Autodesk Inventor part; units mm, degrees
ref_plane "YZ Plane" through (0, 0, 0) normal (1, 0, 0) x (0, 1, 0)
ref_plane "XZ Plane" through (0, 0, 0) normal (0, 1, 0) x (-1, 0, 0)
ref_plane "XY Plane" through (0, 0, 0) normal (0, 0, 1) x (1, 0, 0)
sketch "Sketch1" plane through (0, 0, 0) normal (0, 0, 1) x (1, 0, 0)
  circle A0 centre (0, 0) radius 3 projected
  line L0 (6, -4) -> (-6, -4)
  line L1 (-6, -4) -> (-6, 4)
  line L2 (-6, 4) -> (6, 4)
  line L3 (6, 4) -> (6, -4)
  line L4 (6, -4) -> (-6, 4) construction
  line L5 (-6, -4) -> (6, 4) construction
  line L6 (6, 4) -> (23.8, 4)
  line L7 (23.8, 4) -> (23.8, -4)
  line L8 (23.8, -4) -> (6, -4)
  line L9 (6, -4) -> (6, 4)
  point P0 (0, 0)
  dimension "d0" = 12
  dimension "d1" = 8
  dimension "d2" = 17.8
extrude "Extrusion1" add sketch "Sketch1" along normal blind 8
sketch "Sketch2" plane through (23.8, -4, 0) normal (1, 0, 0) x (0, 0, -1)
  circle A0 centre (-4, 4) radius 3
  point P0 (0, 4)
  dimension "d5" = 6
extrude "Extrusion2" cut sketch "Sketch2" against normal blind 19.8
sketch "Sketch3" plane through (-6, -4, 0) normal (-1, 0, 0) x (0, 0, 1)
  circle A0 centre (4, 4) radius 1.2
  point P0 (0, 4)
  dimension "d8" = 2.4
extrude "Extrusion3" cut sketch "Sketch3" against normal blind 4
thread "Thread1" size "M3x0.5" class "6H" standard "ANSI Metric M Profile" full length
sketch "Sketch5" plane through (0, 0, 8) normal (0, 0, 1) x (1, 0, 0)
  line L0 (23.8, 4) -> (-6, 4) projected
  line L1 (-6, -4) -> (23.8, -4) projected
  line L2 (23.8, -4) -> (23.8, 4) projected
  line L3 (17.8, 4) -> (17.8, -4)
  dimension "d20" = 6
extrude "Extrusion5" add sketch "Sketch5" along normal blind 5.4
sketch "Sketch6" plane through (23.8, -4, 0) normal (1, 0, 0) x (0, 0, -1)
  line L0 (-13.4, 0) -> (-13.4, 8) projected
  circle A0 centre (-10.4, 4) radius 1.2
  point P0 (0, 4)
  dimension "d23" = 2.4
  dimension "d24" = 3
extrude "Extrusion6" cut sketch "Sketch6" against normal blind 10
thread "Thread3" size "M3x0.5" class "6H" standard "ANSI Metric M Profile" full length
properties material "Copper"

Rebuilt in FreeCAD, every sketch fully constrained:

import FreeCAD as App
import Part
import Sketcher
Q = App.Units.Quantity

doc = App.newDocument("Part")
body = doc.addObject("PartDesign::Body", "Body")

# Sketch on XY plane
sketch1 = body.newObject("Sketcher::SketchObject", "Sketch")
sketch1.AttachmentSupport = (doc.getObject("XY_Plane"), [""])
sketch1.MapMode = "FlatFace"
sketch1.addGeometry([
    Part.LineSegment(App.Vector(-6, -4, 0), App.Vector(23.8, -4, 0)),  # 0
    Part.LineSegment(App.Vector(23.8, -4, 0), App.Vector(23.8, 4, 0)),  # 1
    Part.LineSegment(App.Vector(23.8, 4, 0), App.Vector(-6, 4, 0)),  # 2
    Part.LineSegment(App.Vector(-6, 4, 0), App.Vector(-6, -4, 0)),  # 3
    Part.Circle(App.Vector(0, 0, 0), App.Vector(0, 0, 1), 3),  # 4
], False)
sketch1.addConstraint([
    Sketcher.Constraint("Coincident", 0, 2, 1, 1),
    Sketcher.Constraint("Coincident", 1, 2, 2, 1),
    Sketcher.Constraint("Coincident", 2, 2, 3, 1),
    Sketcher.Constraint("Coincident", 3, 2, 0, 1),
    Sketcher.Constraint("Horizontal", 0),
    Sketcher.Constraint("Vertical", 1),
    Sketcher.Constraint("Horizontal", 2),
    Sketcher.Constraint("Vertical", 3),
    Sketcher.Constraint("Coincident", 4, 3, -1, 1),
    Sketcher.Constraint("DistanceY", 1, 1, 1, 2, Q("8 mm")),
    Sketcher.Constraint("Diameter", 4, Q("6 mm")),
    Sketcher.Constraint("DistanceX", 0, 1, 0, 2, Q("29.8 mm")),
    Sketcher.Constraint("DistanceY", 0, 2, -1, 1, Q("4 mm")),
    Sketcher.Constraint("DistanceX", 2, 2, -1, 1, Q("6 mm")),
])
pad1 = body.newObject("PartDesign::Pad", "Pad")
pad1.Profile = sketch1
pad1.Length = 8

# Sketch on YZ plane
sketch2 = body.newObject("Sketcher::SketchObject", "Sketch001")
sketch2.AttachmentSupport = (doc.getObject("YZ_Plane"), [""])
sketch2.MapMode = "FlatFace"
sketch2.AttachmentOffset = App.Placement(App.Vector(0, 0, 23.8), App.Rotation())
sketch2.addGeometry(Part.Circle(App.Vector(0, 4, 0), App.Vector(0, 0, 1), 3), False)
sketch2.addConstraint([
    Sketcher.Constraint("PointOnObject", 0, 3, -2),
    Sketcher.Constraint("Diameter", 0, Q("6 mm")),
    Sketcher.Constraint("DistanceY", -1, 1, 0, 3, Q("4 mm")),
])
pocket1 = body.newObject("PartDesign::Pocket", "Pocket")
pocket1.Profile = sketch2
pocket1.Length = 19.8

# Sketch on YZ plane
sketch3 = body.newObject("Sketcher::SketchObject", "Sketch002")
sketch3.AttachmentSupport = (doc.getObject("YZ_Plane"), [""])
sketch3.MapMode = "FlatFace"
sketch3.AttachmentOffset = App.Placement(App.Vector(0, 0, -6), App.Rotation())
sketch3.addGeometry(Part.Circle(App.Vector(0, 4, 0), App.Vector(0, 0, 1), 1.2), False)
sketch3.addConstraint([
    Sketcher.Constraint("PointOnObject", 0, 3, -2),
    Sketcher.Constraint("Diameter", 0, Q("2.4 mm")),
    Sketcher.Constraint("DistanceY", -1, 1, 0, 3, Q("4 mm")),
])
pocket2 = body.newObject("PartDesign::Pocket", "Pocket001")
pocket2.Profile = sketch3
pocket2.Length = 4
pocket2.Reversed = True

# Sketch on XY plane
sketch4 = body.newObject("Sketcher::SketchObject", "Sketch003")
sketch4.AttachmentSupport = (doc.getObject("XY_Plane"), [""])
sketch4.MapMode = "FlatFace"
sketch4.AttachmentOffset = App.Placement(App.Vector(0, 0, 8), App.Rotation())
sketch4.addGeometry([
    Part.LineSegment(App.Vector(24, -4, 0), App.Vector(24, 4, 0)),
    Part.LineSegment(App.Vector(24, 4, 0), App.Vector(18, 4, 0)),
    Part.LineSegment(App.Vector(18, 4, 0), App.Vector(18, -4, 0)),
    Part.LineSegment(App.Vector(18, -4, 0), App.Vector(24, -4, 0)),
], False)
sketch4.addConstraint([
    Sketcher.Constraint("Coincident", 0, 2, 1, 1),
    Sketcher.Constraint("Coincident", 1, 2, 2, 1),
    Sketcher.Constraint("Coincident", 2, 2, 3, 1),
    Sketcher.Constraint("Coincident", 3, 2, 0, 1),
    Sketcher.Constraint("Vertical", 0),
    Sketcher.Constraint("Horizontal", 1),
    Sketcher.Constraint("Vertical", 2),
    Sketcher.Constraint("Horizontal", 3),
    Sketcher.Constraint("DistanceX", 1, 2, 1, 1, Q("6 mm")),
    Sketcher.Constraint("DistanceY", 0, 1, 0, 2, Q("8 mm")),
    Sketcher.Constraint("DistanceY", -1, 1, 0, 2, Q("4 mm")),
    Sketcher.Constraint("DistanceX", -1, 1, 0, 2, Q("23.8 mm")),
])
pad2 = body.newObject("PartDesign::Pad", "Pad001")
pad2.Profile = sketch4
pad2.Length = 5.4

# Sketch on YZ plane
sketch5 = body.newObject("Sketcher::SketchObject", "Sketch004")
sketch5.AttachmentSupport = (doc.getObject("YZ_Plane"), [""])
sketch5.MapMode = "FlatFace"
sketch5.AttachmentOffset = App.Placement(App.Vector(0, 0, 23.8), App.Rotation())
sketch5.addGeometry(Part.Circle(App.Vector(0, 10.4, 0), App.Vector(0, 0, 1), 1.2), False)
sketch5.addConstraint([
    Sketcher.Constraint("PointOnObject", 0, 3, -2),
    Sketcher.Constraint("Diameter", 0, Q("2.4 mm")),
    Sketcher.Constraint("DistanceY", -1, 1, 0, 3, Q("10.4 mm")),
])
pocket3 = body.newObject("PartDesign::Pocket", "Pocket002")
pocket3.Profile = sketch5
pocket3.Length = 10

doc.recompute()
